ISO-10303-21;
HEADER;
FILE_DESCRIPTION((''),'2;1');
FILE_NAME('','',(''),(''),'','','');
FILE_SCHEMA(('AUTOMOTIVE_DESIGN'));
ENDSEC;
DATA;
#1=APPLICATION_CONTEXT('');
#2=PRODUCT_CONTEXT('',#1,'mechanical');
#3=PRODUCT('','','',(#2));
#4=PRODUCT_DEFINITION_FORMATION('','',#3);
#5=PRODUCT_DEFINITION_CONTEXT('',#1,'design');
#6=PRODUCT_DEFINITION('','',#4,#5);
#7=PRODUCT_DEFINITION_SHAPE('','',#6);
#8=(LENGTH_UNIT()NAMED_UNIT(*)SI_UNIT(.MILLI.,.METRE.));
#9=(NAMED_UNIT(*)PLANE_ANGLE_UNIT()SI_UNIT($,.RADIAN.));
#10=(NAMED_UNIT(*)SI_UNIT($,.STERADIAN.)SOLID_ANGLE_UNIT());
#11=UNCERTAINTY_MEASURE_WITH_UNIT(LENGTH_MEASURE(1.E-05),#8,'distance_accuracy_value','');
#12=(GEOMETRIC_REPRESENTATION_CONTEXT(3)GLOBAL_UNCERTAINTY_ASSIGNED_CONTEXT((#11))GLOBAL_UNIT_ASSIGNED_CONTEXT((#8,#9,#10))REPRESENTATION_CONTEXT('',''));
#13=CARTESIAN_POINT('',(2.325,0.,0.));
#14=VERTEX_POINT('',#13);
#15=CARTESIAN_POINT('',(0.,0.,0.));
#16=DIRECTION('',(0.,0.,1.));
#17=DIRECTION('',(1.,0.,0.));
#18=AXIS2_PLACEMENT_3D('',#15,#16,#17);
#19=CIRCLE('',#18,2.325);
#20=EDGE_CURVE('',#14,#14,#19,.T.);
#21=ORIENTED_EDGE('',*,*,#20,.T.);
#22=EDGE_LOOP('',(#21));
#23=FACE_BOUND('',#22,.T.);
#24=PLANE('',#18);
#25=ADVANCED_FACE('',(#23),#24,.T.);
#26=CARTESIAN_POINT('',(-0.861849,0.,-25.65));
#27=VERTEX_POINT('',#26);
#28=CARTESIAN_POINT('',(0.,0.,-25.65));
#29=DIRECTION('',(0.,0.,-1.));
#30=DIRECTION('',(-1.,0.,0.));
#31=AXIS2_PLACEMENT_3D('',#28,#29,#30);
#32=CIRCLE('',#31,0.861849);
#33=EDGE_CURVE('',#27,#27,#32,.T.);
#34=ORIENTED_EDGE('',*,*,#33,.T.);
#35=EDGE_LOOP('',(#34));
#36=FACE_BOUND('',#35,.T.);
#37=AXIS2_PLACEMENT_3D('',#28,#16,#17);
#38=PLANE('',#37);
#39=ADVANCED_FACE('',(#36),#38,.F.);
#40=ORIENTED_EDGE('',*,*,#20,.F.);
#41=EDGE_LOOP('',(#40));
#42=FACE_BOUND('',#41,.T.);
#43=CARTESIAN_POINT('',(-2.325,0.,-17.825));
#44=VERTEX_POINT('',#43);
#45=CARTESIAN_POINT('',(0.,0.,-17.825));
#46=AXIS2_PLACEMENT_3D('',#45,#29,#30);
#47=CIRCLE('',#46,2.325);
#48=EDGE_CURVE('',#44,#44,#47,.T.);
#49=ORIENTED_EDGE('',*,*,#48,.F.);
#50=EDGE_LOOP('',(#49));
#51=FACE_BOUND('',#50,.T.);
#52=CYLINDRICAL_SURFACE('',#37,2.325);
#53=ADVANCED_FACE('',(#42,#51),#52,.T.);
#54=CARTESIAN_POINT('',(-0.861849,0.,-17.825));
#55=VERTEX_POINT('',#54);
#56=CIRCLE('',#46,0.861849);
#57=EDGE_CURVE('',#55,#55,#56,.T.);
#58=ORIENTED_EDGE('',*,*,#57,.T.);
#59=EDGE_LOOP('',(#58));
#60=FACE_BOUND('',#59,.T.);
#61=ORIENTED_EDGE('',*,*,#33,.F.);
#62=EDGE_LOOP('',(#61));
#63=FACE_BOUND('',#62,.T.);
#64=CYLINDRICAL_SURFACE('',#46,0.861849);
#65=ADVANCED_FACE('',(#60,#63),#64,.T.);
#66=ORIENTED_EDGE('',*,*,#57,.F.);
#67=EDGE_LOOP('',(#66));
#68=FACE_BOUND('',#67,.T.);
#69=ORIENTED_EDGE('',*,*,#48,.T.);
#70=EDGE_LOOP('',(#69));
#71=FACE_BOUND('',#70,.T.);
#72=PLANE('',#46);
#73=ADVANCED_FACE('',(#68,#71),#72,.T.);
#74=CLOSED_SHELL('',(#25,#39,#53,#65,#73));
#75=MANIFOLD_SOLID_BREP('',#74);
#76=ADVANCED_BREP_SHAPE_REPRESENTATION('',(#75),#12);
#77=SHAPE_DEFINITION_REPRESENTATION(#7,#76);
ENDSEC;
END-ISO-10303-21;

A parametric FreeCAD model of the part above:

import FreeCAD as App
import Part
import Sketcher
from FreeCAD import Vector
Q = App.Units.Quantity

doc = App.newDocument("Part")
body = doc.addObject("PartDesign::Body", "Body")

# Sketch on XY plane
sketch1 = body.newObject("Sketcher::SketchObject", "Sketch")
sketch1.AttachmentSupport = (doc.getObject("XY_Plane"), [""])
sketch1.MapMode = "FlatFace"
sketch1.addGeometry(Part.Circle(Vector(0, 0, 0), Vector(0, 0, 1), 2.3), False)
sketch1.addConstraint(Sketcher.Constraint("Coincident", 0, 3, -1, 1))
sketch1.addConstraint(Sketcher.Constraint("Diameter", 0, Q("4.65 mm")))
pad1 = body.newObject("PartDesign::Pad", "Pad")
pad1.Profile = sketch1
pad1.Length = 25.65
pad1.Reversed = True

# Sketch on XY plane
sketch2 = body.newObject("Sketcher::SketchObject", "Sketch001")
sketch2.AttachmentSupport = (doc.getObject("XY_Plane"), [""])
sketch2.MapMode = "FlatFace"
sketch2.AttachmentOffset = App.Placement(Vector(0, 0, -17.825), App.Rotation())
sketch2.addGeometry(Part.Circle(Vector(0, 0, 0), Vector(0, 0, 1), 2.3), False)
sketch2.addGeometry(Part.Circle(Vector(0, 0, 0), Vector(0, 0, 1), 0.9), False)
sketch2.addConstraint(Sketcher.Constraint("Coincident", 0, 3, -1, 1))
sketch2.addConstraint(Sketcher.Constraint("Coincident", 1, 3, -1, 1))
sketch2.addConstraint(Sketcher.Constraint("Diameter", 0, Q("4.65 mm")))
sketch2.addConstraint(Sketcher.Constraint("Diameter", 1, Q("1.723698 mm")))
pocket1 = body.newObject("PartDesign::Pocket", "Pocket")
pocket1.Profile = sketch2
pocket1.Length = 7.825

doc.recompute()
